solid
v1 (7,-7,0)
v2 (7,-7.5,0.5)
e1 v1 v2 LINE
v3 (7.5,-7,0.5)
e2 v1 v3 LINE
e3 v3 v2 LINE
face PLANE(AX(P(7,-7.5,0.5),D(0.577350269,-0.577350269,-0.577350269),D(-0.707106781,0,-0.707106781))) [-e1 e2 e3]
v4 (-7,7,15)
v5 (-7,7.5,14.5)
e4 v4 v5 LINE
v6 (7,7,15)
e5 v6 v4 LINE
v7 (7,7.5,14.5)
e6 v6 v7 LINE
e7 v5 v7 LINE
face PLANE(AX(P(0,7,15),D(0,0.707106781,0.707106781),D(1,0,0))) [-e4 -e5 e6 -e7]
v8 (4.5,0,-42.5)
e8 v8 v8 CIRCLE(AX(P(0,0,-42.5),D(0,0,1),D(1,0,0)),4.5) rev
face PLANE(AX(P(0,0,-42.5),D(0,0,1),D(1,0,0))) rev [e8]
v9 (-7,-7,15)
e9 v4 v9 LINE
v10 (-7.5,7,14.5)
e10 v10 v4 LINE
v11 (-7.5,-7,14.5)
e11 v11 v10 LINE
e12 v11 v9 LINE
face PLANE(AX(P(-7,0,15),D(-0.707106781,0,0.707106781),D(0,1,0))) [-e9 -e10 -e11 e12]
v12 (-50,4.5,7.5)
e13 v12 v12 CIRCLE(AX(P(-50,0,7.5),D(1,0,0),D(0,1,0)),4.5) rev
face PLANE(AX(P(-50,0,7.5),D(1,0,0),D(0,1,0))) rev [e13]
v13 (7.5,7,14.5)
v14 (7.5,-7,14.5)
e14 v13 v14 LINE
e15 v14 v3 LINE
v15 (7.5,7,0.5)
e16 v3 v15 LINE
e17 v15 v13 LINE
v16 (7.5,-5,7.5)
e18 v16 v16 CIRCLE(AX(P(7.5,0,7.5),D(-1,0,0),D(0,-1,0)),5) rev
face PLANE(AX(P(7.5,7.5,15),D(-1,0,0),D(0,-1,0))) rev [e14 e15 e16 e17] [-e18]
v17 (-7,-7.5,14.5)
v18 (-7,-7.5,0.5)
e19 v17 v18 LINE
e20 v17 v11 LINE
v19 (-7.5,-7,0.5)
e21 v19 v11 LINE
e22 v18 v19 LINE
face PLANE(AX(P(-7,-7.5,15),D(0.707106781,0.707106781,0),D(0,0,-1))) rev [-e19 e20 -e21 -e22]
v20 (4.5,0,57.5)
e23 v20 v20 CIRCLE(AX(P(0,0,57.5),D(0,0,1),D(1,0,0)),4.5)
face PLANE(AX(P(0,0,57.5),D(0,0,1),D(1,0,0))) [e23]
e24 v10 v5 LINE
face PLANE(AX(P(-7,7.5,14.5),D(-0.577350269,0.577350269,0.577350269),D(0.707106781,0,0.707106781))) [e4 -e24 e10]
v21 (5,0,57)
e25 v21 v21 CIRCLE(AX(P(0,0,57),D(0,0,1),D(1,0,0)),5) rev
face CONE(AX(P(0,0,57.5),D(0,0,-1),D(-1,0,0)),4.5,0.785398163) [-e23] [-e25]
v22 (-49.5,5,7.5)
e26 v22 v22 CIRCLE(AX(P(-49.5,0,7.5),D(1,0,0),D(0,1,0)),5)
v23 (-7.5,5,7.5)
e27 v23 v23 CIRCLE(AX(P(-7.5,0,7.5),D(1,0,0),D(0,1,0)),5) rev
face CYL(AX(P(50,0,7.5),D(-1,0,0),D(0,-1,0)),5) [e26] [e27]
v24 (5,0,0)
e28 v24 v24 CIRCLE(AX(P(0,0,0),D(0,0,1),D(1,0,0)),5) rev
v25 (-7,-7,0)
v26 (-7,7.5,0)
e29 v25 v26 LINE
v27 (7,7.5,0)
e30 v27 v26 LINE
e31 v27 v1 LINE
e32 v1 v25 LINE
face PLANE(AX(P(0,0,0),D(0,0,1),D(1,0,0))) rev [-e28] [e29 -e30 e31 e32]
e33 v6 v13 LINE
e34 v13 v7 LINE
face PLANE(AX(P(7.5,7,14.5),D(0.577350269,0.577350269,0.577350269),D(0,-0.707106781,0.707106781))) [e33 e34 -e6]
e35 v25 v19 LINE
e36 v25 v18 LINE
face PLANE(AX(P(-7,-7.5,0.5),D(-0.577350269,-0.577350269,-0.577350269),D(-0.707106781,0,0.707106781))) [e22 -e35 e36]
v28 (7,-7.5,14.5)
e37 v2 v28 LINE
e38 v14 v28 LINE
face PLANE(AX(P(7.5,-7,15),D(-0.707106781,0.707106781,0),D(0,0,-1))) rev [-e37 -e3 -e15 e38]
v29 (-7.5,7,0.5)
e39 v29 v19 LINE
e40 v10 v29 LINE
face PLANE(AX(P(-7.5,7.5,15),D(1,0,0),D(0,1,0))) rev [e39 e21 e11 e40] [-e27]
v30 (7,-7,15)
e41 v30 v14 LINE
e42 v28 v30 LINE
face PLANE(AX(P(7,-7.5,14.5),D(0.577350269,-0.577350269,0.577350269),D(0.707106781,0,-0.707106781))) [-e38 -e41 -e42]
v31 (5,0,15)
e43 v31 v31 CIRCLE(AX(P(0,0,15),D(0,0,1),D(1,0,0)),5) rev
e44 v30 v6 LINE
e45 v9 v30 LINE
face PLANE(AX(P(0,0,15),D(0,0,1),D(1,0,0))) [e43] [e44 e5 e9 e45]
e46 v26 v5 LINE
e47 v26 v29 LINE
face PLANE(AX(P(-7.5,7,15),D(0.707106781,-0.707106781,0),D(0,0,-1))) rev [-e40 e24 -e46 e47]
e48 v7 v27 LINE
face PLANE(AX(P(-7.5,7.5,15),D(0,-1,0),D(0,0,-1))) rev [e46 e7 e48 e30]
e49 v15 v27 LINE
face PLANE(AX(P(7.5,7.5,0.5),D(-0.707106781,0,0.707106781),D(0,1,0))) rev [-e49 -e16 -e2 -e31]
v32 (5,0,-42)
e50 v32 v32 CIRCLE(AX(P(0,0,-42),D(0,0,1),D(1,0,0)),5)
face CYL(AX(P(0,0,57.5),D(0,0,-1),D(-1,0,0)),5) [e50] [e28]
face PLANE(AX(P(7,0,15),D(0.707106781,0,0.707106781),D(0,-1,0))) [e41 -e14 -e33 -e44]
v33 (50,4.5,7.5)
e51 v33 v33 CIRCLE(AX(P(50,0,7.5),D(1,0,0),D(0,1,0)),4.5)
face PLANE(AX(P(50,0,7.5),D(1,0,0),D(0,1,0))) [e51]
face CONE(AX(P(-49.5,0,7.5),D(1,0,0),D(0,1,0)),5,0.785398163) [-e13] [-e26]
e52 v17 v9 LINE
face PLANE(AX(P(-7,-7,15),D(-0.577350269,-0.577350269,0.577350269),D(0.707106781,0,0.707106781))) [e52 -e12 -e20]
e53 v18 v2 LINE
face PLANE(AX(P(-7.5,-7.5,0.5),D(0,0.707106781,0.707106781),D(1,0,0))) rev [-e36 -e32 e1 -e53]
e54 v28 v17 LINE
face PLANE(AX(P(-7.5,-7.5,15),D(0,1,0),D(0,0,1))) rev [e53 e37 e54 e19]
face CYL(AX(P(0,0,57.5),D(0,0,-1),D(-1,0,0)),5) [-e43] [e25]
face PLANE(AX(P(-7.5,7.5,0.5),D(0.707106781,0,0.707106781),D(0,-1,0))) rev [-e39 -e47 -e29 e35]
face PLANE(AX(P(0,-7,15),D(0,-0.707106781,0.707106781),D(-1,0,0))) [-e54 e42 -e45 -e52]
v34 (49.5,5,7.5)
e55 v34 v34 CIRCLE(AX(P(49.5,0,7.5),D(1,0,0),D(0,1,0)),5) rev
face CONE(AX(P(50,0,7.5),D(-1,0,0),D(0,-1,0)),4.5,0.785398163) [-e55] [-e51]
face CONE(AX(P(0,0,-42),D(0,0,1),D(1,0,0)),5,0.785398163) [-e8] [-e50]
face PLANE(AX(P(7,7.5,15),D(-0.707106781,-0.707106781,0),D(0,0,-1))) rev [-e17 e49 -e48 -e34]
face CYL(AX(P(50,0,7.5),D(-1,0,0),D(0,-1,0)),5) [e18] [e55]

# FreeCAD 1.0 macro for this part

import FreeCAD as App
import Part
import Sketcher
from FreeCAD import Vector


def edges_at(feature, points):
    """Names of the edges that pass closest to the given points."""
    edges = feature.Shape.Edges
    near = lambda p: min(range(len(edges)), key=lambda i: edges[i].distToShape(Part.Vertex(*p))[0])
    return sorted({f"Edge{near(p) + 1}" for p in points})


def add_polygon(sketch, points):
    """Adds a closed chain of lines whose ends are joined by coincident constraints."""
    first, n = sketch.GeometryCount, len(points)
    for a, b in zip(points, points[1:] + points[:1]):
        sketch.addGeometry(Part.LineSegment(App.Vector(*a, 0), App.Vector(*b, 0)), False)
    for i in range(n):
        sketch.addConstraint(Sketcher.Constraint("Coincident", first + i, 2, first + (i + 1) % n, 1))

doc = App.newDocument("Part")
body = doc.addObject("PartDesign::Body", "Body")

# Sketch on XY plane
sketch1 = body.newObject("Sketcher::SketchObject", "Sketch")
sketch1.AttachmentSupport = (doc.getObject("XY_Plane"), [""])
sketch1.MapMode = "FlatFace"
add_polygon(sketch1, [(-8, 8), (-8, -8), (8, -8), (8, 8)])  # lines 0-3
sketch1.addConstraint(Sketcher.Constraint("Vertical", 0))
sketch1.addConstraint(Sketcher.Constraint("Horizontal", 1))
sketch1.addConstraint(Sketcher.Constraint("Vertical", 2))
sketch1.addConstraint(Sketcher.Constraint("Horizontal", 3))
sketch1.addConstraint(Sketcher.Constraint("Symmetric", 0, 2, 2, 2, -1, 1))
sketch1.addConstraint(Sketcher.Constraint("Equal", 3, 0))
sketch1.addConstraint(Sketcher.Constraint("DistanceX", 1, 1, 1, 2, 15.0))
pad1 = body.newObject("PartDesign::Pad", "Pad")
pad1.Profile = sketch1
pad1.Length = 15

# Sketch on YZ plane
sketch2 = body.newObject("Sketcher::SketchObject", "Sketch001")
sketch2.AttachmentSupport = (doc.getObject("YZ_Plane"), [""])
sketch2.MapMode = "FlatFace"
sketch2.addGeometry(Part.Circle(Vector(0, 8, 0), Vector(0, 0, 1), 5), False)
sketch2.addConstraint(Sketcher.Constraint("PointOnObject", 0, 3, -2))
sketch2.addConstraint(Sketcher.Constraint("Diameter", 0, 10.0))
sketch2.addConstraint(Sketcher.Constraint("DistanceY", -1, 1, 0, 3, 7.5))
pad2 = body.newObject("PartDesign::Pad", "Pad001")
pad2.Profile = sketch2
pad2.Length = 100
pad2.Midplane = True

# Sketch on XY plane
sketch3 = body.newObject("Sketcher::SketchObject", "Sketch002")
sketch3.AttachmentSupport = (doc.getObject("XY_Plane"), [""])
sketch3.MapMode = "FlatFace"
sketch3.AttachmentOffset = App.Placement(Vector(0, 0, 7.5), App.Rotation())
sketch3.addGeometry(Part.Circle(Vector(0, 0, 0), Vector(0, 0, 1), 5), False)
sketch3.addConstraint(Sketcher.Constraint("Coincident", 0, 3, -1, 1))
sketch3.addConstraint(Sketcher.Constraint("Diameter", 0, 10.0))
pad3 = body.newObject("PartDesign::Pad", "Pad002")
pad3.Profile = sketch3
pad3.Length = 100
pad3.Midplane = True
doc.recompute()

chamfer = body.newObject("PartDesign::Chamfer", "Chamfer")
chamfer.Base = (pad3, edges_at(pad3, [
    (-7.5, 0, 15),
    (-50, -5, 7.5),
    (50, -5, 7.5),
    (0, -7.5, 15),
    (-5, 0, -42.5),
    (-5, 0, 57.5),
    (7.5, 0, 15),
    (0, -7.5, 0),
    (-7.5, 0, 0),
    (7.5, 0, 0),
    (7.5, -7.5, 7.5),
    (-7.5, -7.5, 7.5),
    (-7.5, 7.5, 7.5),
    (7.5, 7.5, 7.5),
    (0, 7.5, 15),
]))
chamfer.Size = 0.5

doc.recompute()
